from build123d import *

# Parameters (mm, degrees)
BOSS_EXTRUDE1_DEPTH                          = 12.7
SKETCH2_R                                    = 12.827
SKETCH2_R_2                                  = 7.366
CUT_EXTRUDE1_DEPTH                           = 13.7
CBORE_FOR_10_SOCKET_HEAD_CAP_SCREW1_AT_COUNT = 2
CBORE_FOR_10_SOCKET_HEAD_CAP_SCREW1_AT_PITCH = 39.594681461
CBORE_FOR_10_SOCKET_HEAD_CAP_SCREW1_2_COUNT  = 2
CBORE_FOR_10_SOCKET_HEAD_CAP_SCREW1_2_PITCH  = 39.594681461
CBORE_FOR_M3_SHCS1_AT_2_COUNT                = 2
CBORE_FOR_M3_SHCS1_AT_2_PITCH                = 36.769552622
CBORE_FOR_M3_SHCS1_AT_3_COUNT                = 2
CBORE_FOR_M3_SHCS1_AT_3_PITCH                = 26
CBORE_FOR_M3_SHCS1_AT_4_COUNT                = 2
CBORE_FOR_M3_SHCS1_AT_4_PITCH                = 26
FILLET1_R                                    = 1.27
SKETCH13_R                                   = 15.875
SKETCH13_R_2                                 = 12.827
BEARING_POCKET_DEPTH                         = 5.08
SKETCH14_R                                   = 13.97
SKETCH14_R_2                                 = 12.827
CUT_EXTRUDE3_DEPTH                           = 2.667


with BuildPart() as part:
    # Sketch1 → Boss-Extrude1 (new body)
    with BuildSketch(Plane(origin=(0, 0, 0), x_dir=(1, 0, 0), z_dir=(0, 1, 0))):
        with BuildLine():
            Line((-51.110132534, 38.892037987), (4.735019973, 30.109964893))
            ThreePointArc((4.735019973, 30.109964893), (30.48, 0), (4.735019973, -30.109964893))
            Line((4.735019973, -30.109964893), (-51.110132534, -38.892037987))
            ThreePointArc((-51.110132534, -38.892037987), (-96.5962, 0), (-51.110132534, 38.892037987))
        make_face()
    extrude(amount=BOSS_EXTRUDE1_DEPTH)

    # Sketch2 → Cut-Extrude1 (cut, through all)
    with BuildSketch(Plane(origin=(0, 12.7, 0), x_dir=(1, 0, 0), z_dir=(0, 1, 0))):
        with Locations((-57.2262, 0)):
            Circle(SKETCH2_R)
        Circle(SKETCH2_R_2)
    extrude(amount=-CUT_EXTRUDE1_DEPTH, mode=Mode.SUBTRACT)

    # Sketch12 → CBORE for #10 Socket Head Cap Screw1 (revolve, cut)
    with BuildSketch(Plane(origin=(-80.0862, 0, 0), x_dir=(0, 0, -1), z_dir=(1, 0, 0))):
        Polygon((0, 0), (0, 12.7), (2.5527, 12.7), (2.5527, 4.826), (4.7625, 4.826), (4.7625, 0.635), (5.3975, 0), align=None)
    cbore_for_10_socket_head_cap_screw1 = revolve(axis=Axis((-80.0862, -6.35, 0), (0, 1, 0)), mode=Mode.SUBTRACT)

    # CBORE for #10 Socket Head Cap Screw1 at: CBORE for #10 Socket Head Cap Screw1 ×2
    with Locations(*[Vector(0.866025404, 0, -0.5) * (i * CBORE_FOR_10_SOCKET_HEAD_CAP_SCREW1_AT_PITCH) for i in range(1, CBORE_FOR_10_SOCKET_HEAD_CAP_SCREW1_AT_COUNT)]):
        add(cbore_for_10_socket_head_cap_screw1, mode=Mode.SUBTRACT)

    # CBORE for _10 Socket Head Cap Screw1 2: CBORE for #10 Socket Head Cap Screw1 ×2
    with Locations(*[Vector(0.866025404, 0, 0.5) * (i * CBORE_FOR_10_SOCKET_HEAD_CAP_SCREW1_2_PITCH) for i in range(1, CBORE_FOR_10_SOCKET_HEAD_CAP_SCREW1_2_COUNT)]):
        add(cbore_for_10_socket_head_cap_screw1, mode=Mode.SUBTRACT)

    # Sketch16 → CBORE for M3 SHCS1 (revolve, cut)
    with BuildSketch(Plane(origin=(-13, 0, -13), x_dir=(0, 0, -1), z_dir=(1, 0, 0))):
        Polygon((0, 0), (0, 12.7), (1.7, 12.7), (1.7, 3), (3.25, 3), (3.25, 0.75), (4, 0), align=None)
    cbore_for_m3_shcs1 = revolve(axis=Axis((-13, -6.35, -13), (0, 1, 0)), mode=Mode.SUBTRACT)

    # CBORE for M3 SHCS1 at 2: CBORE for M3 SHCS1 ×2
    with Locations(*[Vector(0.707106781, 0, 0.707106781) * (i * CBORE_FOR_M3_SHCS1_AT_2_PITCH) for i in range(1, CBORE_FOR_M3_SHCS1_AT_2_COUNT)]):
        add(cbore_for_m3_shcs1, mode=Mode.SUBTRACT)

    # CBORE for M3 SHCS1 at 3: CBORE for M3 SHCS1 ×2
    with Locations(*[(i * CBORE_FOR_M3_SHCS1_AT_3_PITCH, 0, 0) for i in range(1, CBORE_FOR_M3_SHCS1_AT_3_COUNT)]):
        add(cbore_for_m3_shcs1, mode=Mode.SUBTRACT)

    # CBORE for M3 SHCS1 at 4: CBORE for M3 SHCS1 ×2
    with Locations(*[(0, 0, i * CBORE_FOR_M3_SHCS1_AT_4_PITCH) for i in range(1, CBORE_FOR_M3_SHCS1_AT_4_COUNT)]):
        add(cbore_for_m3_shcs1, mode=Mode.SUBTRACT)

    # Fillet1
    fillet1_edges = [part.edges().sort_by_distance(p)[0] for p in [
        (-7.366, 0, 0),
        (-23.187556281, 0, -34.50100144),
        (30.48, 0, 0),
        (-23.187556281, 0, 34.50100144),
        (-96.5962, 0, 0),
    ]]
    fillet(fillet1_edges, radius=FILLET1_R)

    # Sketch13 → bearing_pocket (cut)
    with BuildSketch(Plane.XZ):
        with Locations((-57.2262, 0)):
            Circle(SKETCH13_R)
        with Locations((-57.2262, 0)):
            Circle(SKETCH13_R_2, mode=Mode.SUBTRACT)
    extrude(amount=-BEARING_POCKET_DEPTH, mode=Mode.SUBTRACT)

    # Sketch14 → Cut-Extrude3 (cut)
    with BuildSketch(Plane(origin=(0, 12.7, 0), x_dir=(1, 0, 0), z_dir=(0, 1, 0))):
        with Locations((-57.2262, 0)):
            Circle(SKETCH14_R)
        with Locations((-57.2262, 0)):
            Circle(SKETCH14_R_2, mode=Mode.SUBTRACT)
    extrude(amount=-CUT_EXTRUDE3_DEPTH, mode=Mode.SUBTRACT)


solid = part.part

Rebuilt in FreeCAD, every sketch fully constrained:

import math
import FreeCAD as App
import Part
import Sketcher
Q = App.Units.Quantity


def edges_at(feature, points):
    """Names of the edges that pass closest to the given points."""
    edges = feature.Shape.Edges
    near = lambda p: min(range(len(edges)), key=lambda i: edges[i].distToShape(Part.Vertex(*p))[0])
    return sorted({f"Edge{near(p) + 1}" for p in points})

doc = App.newDocument("Part")
body = doc.addObject("PartDesign::Body", "Body")

sketch1 = body.newObject("Sketcher::SketchObject", "Sketch")
sketch1.AttachmentSupport = (doc.getObject("XZ_Plane"), [""])
sketch1.MapMode = "FlatFace"
sketch1.addGeometry([
    Part.LineSegment(App.Vector(4.73502, -30.109965, 0), App.Vector(-51.110133, -38.892038, 0)),
    Part.ArcOfCircle(Part.Circle(App.Vector(-57.2262, 0, 0), App.Vector(0, 0, 1), 39.37), math.radians(81.062996), math.radians(278.937004)),
    Part.LineSegment(App.Vector(-51.110133, 38.892038, 0), App.Vector(4.73502, 30.109965, 0)),
    Part.ArcOfCircle(Part.Circle(App.Vector(0, 0, 0), App.Vector(0, 0, 1), 30.48), math.radians(-81.062996), math.radians(81.062996)),
], False)
sketch1.addConstraint([
    Sketcher.Constraint("Tangent", 0, 2, 1, 2),
    Sketcher.Constraint("Tangent", 1, 1, 2, 1),
    Sketcher.Constraint("Tangent", 2, 2, 3, 2),
    Sketcher.Constraint("Tangent", 3, 1, 0, 1),
    Sketcher.Constraint("Coincident", 3, 3, -1, 1),
    Sketcher.Constraint("PointOnObject", 1, 3, -1),
    Sketcher.Constraint("Radius", 3, Q("1.2 in")),
    Sketcher.Constraint("Radius", 1, Q("1.55 in")),
    Sketcher.Constraint("DistanceX", 1, 3, -1, 1, Q("2.253 in")),
])
pad1 = body.newObject("PartDesign::Pad", "Pad")
pad1.Profile = sketch1
pad1.Length = Q("0.5 in")
pad1.Reversed = True

sketch2 = body.newObject("Sketcher::SketchObject", "Sketch001")
sketch2.AttachmentSupport = (doc.getObject("XZ_Plane"), [""])
sketch2.MapMode = "FlatFace"
sketch2.AttachmentOffset = App.Placement(App.Vector(0, 0, -0.5 * 25.4), App.Rotation())
sketch2.addGeometry([
    Part.Circle(App.Vector(-57.2262, 0, 0), App.Vector(0, 0, 1), 12.827),
    Part.Circle(App.Vector(0, 0, 0), App.Vector(0, 0, 1), 7.366),
], False)
sketch2.addConstraint([
    Sketcher.Constraint("Coincident", 1, 3, -1, 1),
    Sketcher.Constraint("PointOnObject", 0, 3, -1),
    Sketcher.Constraint("Diameter", 0, Q("1.01 in")),
    Sketcher.Constraint("Diameter", 1, Q("0.58 in")),
    Sketcher.Constraint("DistanceX", 0, 3, -1, 1, Q("2.253 in")),
])
pocket1 = body.newObject("PartDesign::Pocket", "Pocket")
pocket1.Profile = sketch2
pocket1.Type = "ThroughAll"
pocket1.Reversed = True

sketch3 = body.newObject("Sketcher::SketchObject", "Sketch002")
sketch3.AttachmentSupport = (doc.getObject("YZ_Plane"), [""])
sketch3.MapMode = "FlatFace"
sketch3.AttachmentOffset = App.Placement(App.Vector(0, 0, -3.153 * 25.4), App.Rotation())
sketch3.addGeometry([
    Part.LineSegment(App.Vector(12.7, 0, 0), App.Vector(0, 0, 0)),
    Part.LineSegment(App.Vector(0, 0, 0), App.Vector(0, -5.3975, 0)),
    Part.LineSegment(App.Vector(0, -5.3975, 0), App.Vector(0.635, -4.7625, 0)),
    Part.LineSegment(App.Vector(0.635, -4.7625, 0), App.Vector(4.826, -4.7625, 0)),
    Part.LineSegment(App.Vector(4.826, -4.7625, 0), App.Vector(4.826, -2.5527, 0)),
    Part.LineSegment(App.Vector(4.826, -2.5527, 0), App.Vector(12.7, -2.5527, 0)),
    Part.LineSegment(App.Vector(12.7, -2.5527, 0), App.Vector(12.7, 0, 0)),
], False)
sketch3.addConstraint([
    Sketcher.Constraint("Coincident", 0, 2, 1, 1),
    Sketcher.Constraint("Coincident", 1, 2, 2, 1),
    Sketcher.Constraint("Coincident", 2, 2, 3, 1),
    Sketcher.Constraint("Coincident", 3, 2, 4, 1),
    Sketcher.Constraint("Coincident", 4, 2, 5, 1),
    Sketcher.Constraint("Coincident", 5, 2, 6, 1),
    Sketcher.Constraint("Coincident", 6, 2, 0, 1),
    Sketcher.Constraint("Horizontal", 0),
    Sketcher.Constraint("Vertical", 1),
    Sketcher.Constraint("Horizontal", 3),
    Sketcher.Constraint("Vertical", 4),
    Sketcher.Constraint("Horizontal", 5),
    Sketcher.Constraint("Vertical", 6),
    Sketcher.Constraint("Coincident", 0, 2, -1, 1),
    Sketcher.Constraint("DistanceX", 0, 2, 0, 1, Q("0.5 in")),
    Sketcher.Constraint("Angle", 2, Q("45 deg")),
    Sketcher.Constraint("DistanceX", 5, 1, 5, 2, Q("0.31 in")),
    Sketcher.Constraint("DistanceX", 3, 1, 3, 2, Q("0.165 in")),
    Sketcher.Constraint("DistanceY", 4, 1, 4, 2, Q("0.087 in")),
    Sketcher.Constraint("DistanceY", 1, 2, 1, 1, Q("0.2125 in")),
])
groove = body.newObject("PartDesign::Groove", "Groove")
groove.Profile = sketch3
groove.ReferenceAxis = (sketch3, ["H_Axis"])
groove.Angle = 360
doc.recompute()

datumline = body.newObject("PartDesign::Line", "DatumLine")
datumline.Placement = App.Placement(App.Vector(0, 0, 0), App.Rotation(App.Vector(0, 0, 1), App.Vector(0.866025404, 0, -0.5)))
linearpattern = body.newObject("PartDesign::LinearPattern", "LinearPattern")
linearpattern.Originals = [groove]
linearpattern.Direction = (datumline, [""])
linearpattern.Mode = "offset"
linearpattern.Offset = 39.594681
linearpattern.Occurrences = 2
body.Tip = linearpattern
doc.recompute()

datumline2 = body.newObject("PartDesign::Line", "DatumLine001")
datumline2.Placement = App.Placement(App.Vector(0, 0, 0), App.Rotation(App.Vector(0, 0, 1), App.Vector(0.866025404, 0, 0.5)))
linearpattern2 = body.newObject("PartDesign::LinearPattern", "LinearPattern001")
linearpattern2.Originals = [groove]
linearpattern2.Direction = (datumline2, [""])
linearpattern2.Mode = "offset"
linearpattern2.Offset = 39.594681
linearpattern2.Occurrences = 2
body.Tip = linearpattern2

sketch4 = body.newObject("Sketcher::SketchObject", "Sketch003")
sketch4.AttachmentSupport = (doc.getObject("YZ_Plane"), [""])
sketch4.MapMode = "FlatFace"
sketch4.AttachmentOffset = App.Placement(App.Vector(0, 0, -13), App.Rotation())
sketch4.addGeometry([
    Part.LineSegment(App.Vector(12.7, -13, 0), App.Vector(0, -13, 0)),
    Part.LineSegment(App.Vector(0, -13, 0), App.Vector(0, -17, 0)),
    Part.LineSegment(App.Vector(0, -17, 0), App.Vector(0.75, -16.25, 0)),
    Part.LineSegment(App.Vector(0.75, -16.25, 0), App.Vector(3, -16.25, 0)),
    Part.LineSegment(App.Vector(3, -16.25, 0), App.Vector(3, -14.7, 0)),
    Part.LineSegment(App.Vector(3, -14.7, 0), App.Vector(12.7, -14.7, 0)),
    Part.LineSegment(App.Vector(12.7, -14.7, 0), App.Vector(12.7, -13, 0)),
], False)
sketch4.addGeometry(Part.LineSegment(App.Vector(0, -13, 0), App.Vector(12.7, -13, 0)), True)
sketch4.addConstraint([
    Sketcher.Constraint("Coincident", 0, 2, 1, 1),
    Sketcher.Constraint("Coincident", 1, 2, 2, 1),
    Sketcher.Constraint("Coincident", 2, 2, 3, 1),
    Sketcher.Constraint("Coincident", 3, 2, 4, 1),
    Sketcher.Constraint("Coincident", 4, 2, 5, 1),
    Sketcher.Constraint("Coincident", 5, 2, 6, 1),
    Sketcher.Constraint("Coincident", 6, 2, 0, 1),
    Sketcher.Constraint("Horizontal", 0),
    Sketcher.Constraint("Vertical", 1),
    Sketcher.Constraint("Horizontal", 3),
    Sketcher.Constraint("Vertical", 4),
    Sketcher.Constraint("Horizontal", 5),
    Sketcher.Constraint("Vertical", 6),
    Sketcher.Constraint("Horizontal", 7),
    Sketcher.Constraint("Coincident", 7, 1, 0, 2),
    Sketcher.Constraint("PointOnObject", 0, 2, -2),
    Sketcher.Constraint("Vertical", 5, 2, 7, 2),
    Sketcher.Constraint("DistanceX", 0, 2, 0, 1, Q("0.5 in")),
    Sketcher.Constraint("Angle", 2, Q("45 deg")),
    Sketcher.Constraint("DistanceX", 3, 1, 3, 2, 2.25),
    Sketcher.Constraint("DistanceX", 5, 1, 5, 2, 9.7),
    Sketcher.Constraint("DistanceY", 1, 2, 1, 1, 4.0),
    Sketcher.Constraint("DistanceY", 4, 1, 4, 2, 1.55),
    Sketcher.Constraint("DistanceY", 0, 2, -1, 1, 13.0),
])
groove2 = body.newObject("PartDesign::Groove", "Groove001")
groove2.Profile = sketch4
groove2.ReferenceAxis = (sketch4, ["Axis0"])
groove2.Angle = 360
doc.recompute()

datumline3 = body.newObject("PartDesign::Line", "DatumLine002")
datumline3.Placement = App.Placement(App.Vector(0, 0, 0), App.Rotation(App.Vector(0, 0, 1), App.Vector(0.707106781, 0, 0.707106781)))
linearpattern3 = body.newObject("PartDesign::LinearPattern", "LinearPattern002")
linearpattern3.Originals = [groove2]
linearpattern3.Direction = (datumline3, [""])
linearpattern3.Mode = "offset"
linearpattern3.Offset = 36.769553
linearpattern3.Occurrences = 2
body.Tip = linearpattern3
doc.recompute()

linearpattern4 = body.newObject("PartDesign::LinearPattern", "LinearPattern003")
linearpattern4.Originals = [groove2]
linearpattern4.Direction = (doc.getObject("X_Axis"), [""])
linearpattern4.Mode = "offset"
linearpattern4.Offset = 26
linearpattern4.Occurrences = 2
body.Tip = linearpattern4
doc.recompute()

linearpattern5 = body.newObject("PartDesign::LinearPattern", "LinearPattern004")
linearpattern5.Originals = [groove2]
linearpattern5.Direction = (doc.getObject("Z_Axis"), [""])
linearpattern5.Mode = "offset"
linearpattern5.Offset = 26
linearpattern5.Occurrences = 2
body.Tip = linearpattern5
doc.recompute()

fillet = body.newObject("PartDesign::Fillet", "Fillet")
fillet.Base = (linearpattern5, edges_at(linearpattern5, [
    (-7.366, 0, 0),
    (-23.188, 0, -34.501),
    (30.48, 0, 0),
    (-23.188, 0, 34.501),
    (-96.596, 0, 0),
]))
fillet.Radius = Q("0.05 in")

sketch5 = body.newObject("Sketcher::SketchObject", "Sketch004")
sketch5.AttachmentSupport = (doc.getObject("XZ_Plane"), [""])
sketch5.MapMode = "FlatFace"
sketch5.addGeometry([
    Part.Circle(App.Vector(-57.2262, 0, 0), App.Vector(0, 0, 1), 15.875),
    Part.Circle(App.Vector(-57.2262, 0, 0), App.Vector(0, 0, 1), 12.827),
], False)
sketch5.addConstraint([
    Sketcher.Constraint("Coincident", 1, 3, 0, 3),
    Sketcher.Constraint("PointOnObject", 0, 3, -1),
    Sketcher.Constraint("Diameter", 0, Q("1.25 in")),
    Sketcher.Constraint("Diameter", 1, Q("1.01 in")),
    Sketcher.Constraint("DistanceX", 0, 3, -1, 1, Q("2.253 in")),
])
pocket2 = body.newObject("PartDesign::Pocket", "Pocket001")
pocket2.Profile = sketch5
pocket2.Length = Q("0.2 in")

sketch6 = body.newObject("Sketcher::SketchObject", "Sketch005")
sketch6.AttachmentSupport = (doc.getObject("XZ_Plane"), [""])
sketch6.MapMode = "FlatFace"
sketch6.AttachmentOffset = App.Placement(App.Vector(0, 0, -0.5 * 25.4), App.Rotation())
sketch6.addGeometry([
    Part.Circle(App.Vector(-57.2262, 0, 0), App.Vector(0, 0, 1), 13.97),
    Part.Circle(App.Vector(-57.2262, 0, 0), App.Vector(0, 0, 1), 12.827),
], False)
sketch6.addConstraint([
    Sketcher.Constraint("Coincident", 1, 3, 0, 3),
    Sketcher.Constraint("PointOnObject", 0, 3, -1),
    Sketcher.Constraint("Diameter", 0, Q("1.1 in")),
    Sketcher.Constraint("Diameter", 1, Q("1.01 in")),
    Sketcher.Constraint("DistanceX", 0, 3, -1, 1, Q("2.253 in")),
])
pocket3 = body.newObject("PartDesign::Pocket", "Pocket002")
pocket3.Profile = sketch6
pocket3.Length = Q("0.105 in")
pocket3.Reversed = True

doc.recompute()
